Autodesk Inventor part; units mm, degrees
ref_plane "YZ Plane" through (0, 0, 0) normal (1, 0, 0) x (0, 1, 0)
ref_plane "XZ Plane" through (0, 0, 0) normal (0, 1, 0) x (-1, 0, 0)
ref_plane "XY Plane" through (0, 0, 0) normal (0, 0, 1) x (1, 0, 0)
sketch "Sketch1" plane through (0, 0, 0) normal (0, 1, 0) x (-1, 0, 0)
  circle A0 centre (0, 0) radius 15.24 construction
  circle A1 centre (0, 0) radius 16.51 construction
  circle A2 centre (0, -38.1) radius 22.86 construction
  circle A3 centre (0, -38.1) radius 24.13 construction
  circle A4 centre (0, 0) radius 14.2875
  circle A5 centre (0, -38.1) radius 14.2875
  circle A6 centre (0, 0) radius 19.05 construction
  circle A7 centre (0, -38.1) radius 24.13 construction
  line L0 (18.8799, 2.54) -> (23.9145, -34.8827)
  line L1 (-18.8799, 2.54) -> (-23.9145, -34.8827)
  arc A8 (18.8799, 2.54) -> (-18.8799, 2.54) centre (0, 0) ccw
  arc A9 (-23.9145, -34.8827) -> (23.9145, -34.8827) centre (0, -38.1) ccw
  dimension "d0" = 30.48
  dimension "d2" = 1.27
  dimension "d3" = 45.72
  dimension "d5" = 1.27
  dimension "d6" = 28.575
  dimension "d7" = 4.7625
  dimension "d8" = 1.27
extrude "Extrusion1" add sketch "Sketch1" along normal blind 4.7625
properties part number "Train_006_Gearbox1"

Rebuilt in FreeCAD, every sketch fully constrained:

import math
import FreeCAD as App
import Part
import Sketcher
Q = App.Units.Quantity

doc = App.newDocument("Part")
params = doc.addObject("Spreadsheet::Sheet", "Params")
for row, (alias, value) in enumerate([
    ("sketch1_diameter", "1.125 in"),
    ("sketch1_radius", "0.75 in"),
    ("sketch1_radius2", "0.95 in"),
    ("pad1_length", "0.1875 in"),
], start=1):
    params.set(f"A{row}", alias)
    params.set(f"B{row}", "=" + value)
    params.setAlias(f"B{row}", alias)

body = doc.addObject("PartDesign::Body", "Body")

sketch1 = body.newObject("Sketcher::SketchObject", "Sketch")
sketch1.AttachmentSupport = (doc.getObject("XZ_Plane"), [""])
sketch1.MapMode = "FlatFace"
sketch1.addGeometry(Part.LineSegment(App.Vector(-24, -35, 0), App.Vector(-19, 3, 0)), False)
sketch1.addGeometry(Part.ArcOfCircle(Part.Circle(App.Vector(0, 0, 0), App.Vector(0, 0, 1), 19), math.radians(8), math.radians(172)), False)
sketch1.addGeometry(Part.LineSegment(App.Vector(19, 3, 0), App.Vector(24, -35, 0)), False)
sketch1.addGeometry(Part.ArcOfCircle(Part.Circle(App.Vector(0, -38, 0), App.Vector(0, 0, 1), 24), math.radians(172), math.radians(368)), False)
sketch1.addGeometry(Part.Circle(App.Vector(0, -38, 0), App.Vector(0, 0, 1), 14), False)
sketch1.addGeometry(Part.Circle(App.Vector(0, 0, 0), App.Vector(0, 0, 1), 14), False)
sketch1.addConstraint(Sketcher.Constraint("Tangent", 0, 2, 1, 2))
sketch1.addConstraint(Sketcher.Constraint("Tangent", 1, 1, 2, 1))
sketch1.addConstraint(Sketcher.Constraint("Tangent", 2, 2, 3, 2))
sketch1.addConstraint(Sketcher.Constraint("Tangent", 3, 1, 0, 1))
sketch1.addConstraint(Sketcher.Constraint("Coincident", 1, 3, -1, 1))
sketch1.addConstraint(Sketcher.Constraint("Coincident", 5, 3, -1, 1))
sketch1.addConstraint(Sketcher.Constraint("Coincident", 4, 3, 3, 3))
sketch1.addConstraint(Sketcher.Constraint("Equal", 4, 5))
sketch1.addConstraint(Sketcher.Constraint("PointOnObject", 3, 3, -2))
sketch1.addConstraint(Sketcher.Constraint("Diameter", 4, Q("1.125 in")))
sketch1.addConstraint(Sketcher.Constraint("Radius", 1, Q("0.75 in")))
sketch1.addConstraint(Sketcher.Constraint("Radius", 3, Q("0.95 in")))
sketch1.addConstraint(Sketcher.Constraint("DistanceY", 3, 3, -1, 1, Q("1.5 in")))
sketch1.setExpression("Constraints[9]", "Params.sketch1_diameter")
sketch1.setExpression("Constraints[10]", "Params.sketch1_radius")
sketch1.setExpression("Constraints[11]", "Params.sketch1_radius2")
pad1 = body.newObject("PartDesign::Pad", "Pad")
pad1.Profile = sketch1
pad1.setExpression("Length", "Params.pad1_length")
pad1.Reversed = True

doc.recompute()
